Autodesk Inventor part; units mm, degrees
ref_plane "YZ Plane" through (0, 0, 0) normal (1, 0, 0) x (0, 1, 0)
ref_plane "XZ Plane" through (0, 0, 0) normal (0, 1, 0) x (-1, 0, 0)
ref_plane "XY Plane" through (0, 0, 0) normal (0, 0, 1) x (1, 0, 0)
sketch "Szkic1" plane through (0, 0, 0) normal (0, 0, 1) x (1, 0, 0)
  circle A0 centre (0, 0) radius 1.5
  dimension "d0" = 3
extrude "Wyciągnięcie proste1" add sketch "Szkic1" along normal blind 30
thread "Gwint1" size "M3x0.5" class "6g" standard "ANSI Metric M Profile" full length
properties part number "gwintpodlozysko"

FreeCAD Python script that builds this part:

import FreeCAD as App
import Part
import Sketcher

V = App.Vector

doc = App.newDocument("Part")
body = doc.addObject("PartDesign::Body", "Body")

sketch1 = body.newObject("Sketcher::SketchObject", "Sketch")
sketch1.AttachmentSupport = (doc.getObject("XY_Plane"), [""])
sketch1.MapMode = "FlatFace"
sketch1.addGeometry(Part.Circle(V(0, 0, 0), V(0, 0, 1), 1.5), False)
sketch1.addConstraint(Sketcher.Constraint("Coincident", 0, 3, -1, 1))
sketch1.addConstraint(Sketcher.Constraint("Diameter", 0, 3.0))
pad1 = body.newObject("PartDesign::Pad", "Pad")
pad1.Profile = sketch1
pad1.Length = 30

doc.recompute()
